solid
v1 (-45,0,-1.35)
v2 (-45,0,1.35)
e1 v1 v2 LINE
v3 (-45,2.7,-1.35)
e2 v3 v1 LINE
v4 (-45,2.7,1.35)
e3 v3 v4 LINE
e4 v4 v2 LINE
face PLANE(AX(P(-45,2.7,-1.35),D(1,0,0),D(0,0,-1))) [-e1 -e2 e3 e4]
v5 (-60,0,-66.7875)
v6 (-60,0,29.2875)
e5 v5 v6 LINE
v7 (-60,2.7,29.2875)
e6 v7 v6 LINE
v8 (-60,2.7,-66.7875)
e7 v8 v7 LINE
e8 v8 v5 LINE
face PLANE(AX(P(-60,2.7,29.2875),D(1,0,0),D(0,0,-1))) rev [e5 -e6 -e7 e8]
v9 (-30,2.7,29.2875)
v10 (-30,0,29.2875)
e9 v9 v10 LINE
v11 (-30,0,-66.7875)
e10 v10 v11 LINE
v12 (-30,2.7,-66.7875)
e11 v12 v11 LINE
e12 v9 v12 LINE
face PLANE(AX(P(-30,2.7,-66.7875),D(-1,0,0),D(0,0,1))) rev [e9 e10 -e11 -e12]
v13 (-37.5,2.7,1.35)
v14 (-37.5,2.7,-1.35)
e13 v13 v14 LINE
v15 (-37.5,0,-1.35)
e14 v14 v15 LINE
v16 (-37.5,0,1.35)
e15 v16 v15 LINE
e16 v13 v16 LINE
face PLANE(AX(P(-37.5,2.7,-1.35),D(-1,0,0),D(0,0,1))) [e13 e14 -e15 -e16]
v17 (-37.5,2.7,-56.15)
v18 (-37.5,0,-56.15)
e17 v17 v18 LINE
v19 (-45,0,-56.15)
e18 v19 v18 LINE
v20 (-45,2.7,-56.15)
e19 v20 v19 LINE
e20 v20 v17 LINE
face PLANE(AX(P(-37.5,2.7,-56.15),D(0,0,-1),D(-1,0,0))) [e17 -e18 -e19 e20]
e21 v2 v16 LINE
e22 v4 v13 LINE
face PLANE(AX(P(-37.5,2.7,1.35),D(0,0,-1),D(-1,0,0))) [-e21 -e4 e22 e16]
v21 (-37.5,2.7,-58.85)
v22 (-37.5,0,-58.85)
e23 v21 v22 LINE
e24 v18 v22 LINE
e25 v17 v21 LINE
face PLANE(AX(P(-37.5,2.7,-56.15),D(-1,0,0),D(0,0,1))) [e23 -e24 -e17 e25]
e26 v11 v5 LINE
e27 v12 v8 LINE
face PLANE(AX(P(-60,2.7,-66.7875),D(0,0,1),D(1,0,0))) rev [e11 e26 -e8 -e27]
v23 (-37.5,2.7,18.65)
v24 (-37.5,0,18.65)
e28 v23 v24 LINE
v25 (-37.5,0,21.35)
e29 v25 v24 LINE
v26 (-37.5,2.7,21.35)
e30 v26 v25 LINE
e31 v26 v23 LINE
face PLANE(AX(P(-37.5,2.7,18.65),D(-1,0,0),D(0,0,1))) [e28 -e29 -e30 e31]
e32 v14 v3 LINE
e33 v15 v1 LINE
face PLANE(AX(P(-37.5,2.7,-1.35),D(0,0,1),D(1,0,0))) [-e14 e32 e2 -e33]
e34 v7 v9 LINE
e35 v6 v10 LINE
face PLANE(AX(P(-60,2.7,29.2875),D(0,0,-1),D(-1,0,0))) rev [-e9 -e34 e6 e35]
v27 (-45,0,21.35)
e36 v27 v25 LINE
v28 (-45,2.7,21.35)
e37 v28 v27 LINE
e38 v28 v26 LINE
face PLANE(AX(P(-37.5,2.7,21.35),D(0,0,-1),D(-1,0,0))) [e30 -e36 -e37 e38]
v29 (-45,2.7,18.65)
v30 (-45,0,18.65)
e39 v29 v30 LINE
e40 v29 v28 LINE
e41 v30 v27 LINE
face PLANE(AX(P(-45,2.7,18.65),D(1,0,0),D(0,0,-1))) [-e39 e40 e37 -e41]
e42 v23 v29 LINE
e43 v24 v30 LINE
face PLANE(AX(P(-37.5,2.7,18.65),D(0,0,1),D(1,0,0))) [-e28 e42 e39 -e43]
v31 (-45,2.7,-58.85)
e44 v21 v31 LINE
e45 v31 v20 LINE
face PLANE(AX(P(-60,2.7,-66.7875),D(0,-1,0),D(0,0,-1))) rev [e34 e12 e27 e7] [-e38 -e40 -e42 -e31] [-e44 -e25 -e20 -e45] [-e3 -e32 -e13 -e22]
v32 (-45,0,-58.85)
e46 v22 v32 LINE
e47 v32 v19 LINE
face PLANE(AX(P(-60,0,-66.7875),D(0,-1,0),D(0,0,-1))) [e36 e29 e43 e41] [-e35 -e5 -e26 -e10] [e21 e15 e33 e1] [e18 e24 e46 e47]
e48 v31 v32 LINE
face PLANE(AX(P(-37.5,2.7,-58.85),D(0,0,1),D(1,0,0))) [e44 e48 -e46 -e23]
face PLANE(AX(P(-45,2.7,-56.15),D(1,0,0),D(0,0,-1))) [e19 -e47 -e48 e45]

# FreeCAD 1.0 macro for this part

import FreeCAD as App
import Part
import Sketcher

V = App.Vector
Q = App.Units.Quantity

doc = App.newDocument("Part")
params = doc.addObject("Spreadsheet::Sheet", "Params")
for row, (alias, value) in enumerate([
    ("sketch1_width", "30 mm"),
    ("sketch1_width2", "7.5 mm"),
    ("sketch1_height", "2.7 mm"),
    ("pad1_length", "2.7 mm"),
], start=1):
    params.set(f"A{row}", alias)
    params.set(f"B{row}", "=" + value)
    params.setAlias(f"B{row}", alias)

body = doc.addObject("PartDesign::Body", "Body")

# Sketch on XZ plane
sketch1 = body.newObject("Sketcher::SketchObject", "Sketch")
sketch1.AttachmentSupport = (doc.getObject("XZ_Plane"), [""])
sketch1.MapMode = "FlatFace"
sketch1.addGeometry(Part.LineSegment(V(-60, -66.8, 0), V(-60, 29.3, 0)), False)
sketch1.addGeometry(Part.LineSegment(V(-60, 29.3, 0), V(-30, 29.3, 0)), False)
sketch1.addGeometry(Part.LineSegment(V(-30, 29.3, 0), V(-30, -66.8, 0)), False)
sketch1.addGeometry(Part.LineSegment(V(-30, -66.8, 0), V(-60, -66.8, 0)), False)
sketch1.addGeometry(Part.LineSegment(V(-37.5, 21.4, 0), V(-45, 21.4, 0)), False)
sketch1.addGeometry(Part.LineSegment(V(-45, 21.4, 0), V(-45, 18.6, 0)), False)
sketch1.addGeometry(Part.LineSegment(V(-45, 18.6, 0), V(-37.5, 18.6, 0)), False)
sketch1.addGeometry(Part.LineSegment(V(-37.5, 18.6, 0), V(-37.5, 21.4, 0)), False)
sketch1.addGeometry(Part.LineSegment(V(-37.5, 1.4, 0), V(-45, 1.4, 0)), False)
sketch1.addGeometry(Part.LineSegment(V(-45, 1.4, 0), V(-45, -1.4, 0)), False)
sketch1.addGeometry(Part.LineSegment(V(-45, -1.4, 0), V(-37.5, -1.4, 0)), False)
sketch1.addGeometry(Part.LineSegment(V(-37.5, -1.4, 0), V(-37.5, 1.4, 0)), False)
sketch1.addGeometry(Part.LineSegment(V(-37.5, -56.1, 0), V(-45, -56.1, 0)), False)
sketch1.addGeometry(Part.LineSegment(V(-45, -56.1, 0), V(-45, -58.9, 0)), False)
sketch1.addGeometry(Part.LineSegment(V(-45, -58.9, 0), V(-37.5, -58.9, 0)), False)
sketch1.addGeometry(Part.LineSegment(V(-37.5, -58.9, 0), V(-37.5, -56.1, 0)), False)
sketch1.addConstraint(Sketcher.Constraint("Coincident", 0, 2, 1, 1))
sketch1.addConstraint(Sketcher.Constraint("Coincident", 1, 2, 2, 1))
sketch1.addConstraint(Sketcher.Constraint("Coincident", 2, 2, 3, 1))
sketch1.addConstraint(Sketcher.Constraint("Coincident", 3, 2, 0, 1))
sketch1.addConstraint(Sketcher.Constraint("Coincident", 4, 2, 5, 1))
sketch1.addConstraint(Sketcher.Constraint("Coincident", 5, 2, 6, 1))
sketch1.addConstraint(Sketcher.Constraint("Coincident", 6, 2, 7, 1))
sketch1.addConstraint(Sketcher.Constraint("Coincident", 7, 2, 4, 1))
sketch1.addConstraint(Sketcher.Constraint("Coincident", 8, 2, 9, 1))
sketch1.addConstraint(Sketcher.Constraint("Coincident", 9, 2, 10, 1))
sketch1.addConstraint(Sketcher.Constraint("Coincident", 10, 2, 11, 1))
sketch1.addConstraint(Sketcher.Constraint("Coincident", 11, 2, 8, 1))
sketch1.addConstraint(Sketcher.Constraint("Coincident", 12, 2, 13, 1))
sketch1.addConstraint(Sketcher.Constraint("Coincident", 13, 2, 14, 1))
sketch1.addConstraint(Sketcher.Constraint("Coincident", 14, 2, 15, 1))
sketch1.addConstraint(Sketcher.Constraint("Coincident", 15, 2, 12, 1))
sketch1.addConstraint(Sketcher.Constraint("Vertical", 0))
sketch1.addConstraint(Sketcher.Constraint("Horizontal", 1))
sketch1.addConstraint(Sketcher.Constraint("Vertical", 2))
sketch1.addConstraint(Sketcher.Constraint("Horizontal", 3))
sketch1.addConstraint(Sketcher.Constraint("Horizontal", 4))
sketch1.addConstraint(Sketcher.Constraint("Vertical", 5))
sketch1.addConstraint(Sketcher.Constraint("Horizontal", 6))
sketch1.addConstraint(Sketcher.Constraint("Vertical", 7))
sketch1.addConstraint(Sketcher.Constraint("Horizontal", 8))
sketch1.addConstraint(Sketcher.Constraint("Vertical", 9))
sketch1.addConstraint(Sketcher.Constraint("Horizontal", 10))
sketch1.addConstraint(Sketcher.Constraint("Vertical", 11))
sketch1.addConstraint(Sketcher.Constraint("Horizontal", 12))
sketch1.addConstraint(Sketcher.Constraint("Vertical", 13))
sketch1.addConstraint(Sketcher.Constraint("Horizontal", 14))
sketch1.addConstraint(Sketcher.Constraint("Vertical", 15))
sketch1.addConstraint(Sketcher.Constraint("Vertical", 5, 2, 8, 2))
sketch1.addConstraint(Sketcher.Constraint("Vertical", 7, 2, 10, 2))
sketch1.addConstraint(Sketcher.Constraint("Vertical", 9, 2, 12, 2))
sketch1.addConstraint(Sketcher.Constraint("Vertical", 11, 2, 14, 2))
sketch1.addConstraint(Sketcher.Constraint("Equal", 7, 9))
sketch1.addConstraint(Sketcher.Constraint("Equal", 11, 13))
sketch1.addConstraint(Sketcher.Constraint("DistanceX", 1, 1, 1, 2, Q("30 mm")))
sketch1.addConstraint(Sketcher.Constraint("DistanceX", 4, 2, 4, 1, Q("7.5 mm")))
sketch1.addConstraint(Sketcher.Constraint("DistanceY", 5, 2, 5, 1, Q("2.7 mm")))
sketch1.addConstraint(Sketcher.Constraint("DistanceX", 0, 2, -1, 1, Q("60 mm")))
sketch1.addConstraint(Sketcher.Constraint("DistanceX", 4, 2, -1, 1, Q("45 mm")))
sketch1.addConstraint(Sketcher.Constraint("DistanceY", 8, 2, 4, 2, Q("20 mm")))
sketch1.addConstraint(Sketcher.Constraint("DistanceY", 12, 2, 9, 2, Q("54.8 mm")))
sketch1.addConstraint(Sketcher.Constraint("DistanceY", 0, 1, 0, 2, Q("96.075 mm")))
sketch1.addConstraint(Sketcher.Constraint("DistanceY", -1, 1, 4, 2, Q("21.35 mm")))
sketch1.addConstraint(Sketcher.Constraint("DistanceY", -1, 1, 0, 2, Q("29.2875 mm")))
sketch1.setExpression("Constraints[38]", "Params.sketch1_width")
sketch1.setExpression("Constraints[39]", "Params.sketch1_width2")
sketch1.setExpression("Constraints[40]", "Params.sketch1_height")
pad1 = body.newObject("PartDesign::Pad", "Pad")
pad1.Profile = sketch1
pad1.setExpression("Length", "Params.pad1_length")
pad1.Reversed = True

doc.recompute()
